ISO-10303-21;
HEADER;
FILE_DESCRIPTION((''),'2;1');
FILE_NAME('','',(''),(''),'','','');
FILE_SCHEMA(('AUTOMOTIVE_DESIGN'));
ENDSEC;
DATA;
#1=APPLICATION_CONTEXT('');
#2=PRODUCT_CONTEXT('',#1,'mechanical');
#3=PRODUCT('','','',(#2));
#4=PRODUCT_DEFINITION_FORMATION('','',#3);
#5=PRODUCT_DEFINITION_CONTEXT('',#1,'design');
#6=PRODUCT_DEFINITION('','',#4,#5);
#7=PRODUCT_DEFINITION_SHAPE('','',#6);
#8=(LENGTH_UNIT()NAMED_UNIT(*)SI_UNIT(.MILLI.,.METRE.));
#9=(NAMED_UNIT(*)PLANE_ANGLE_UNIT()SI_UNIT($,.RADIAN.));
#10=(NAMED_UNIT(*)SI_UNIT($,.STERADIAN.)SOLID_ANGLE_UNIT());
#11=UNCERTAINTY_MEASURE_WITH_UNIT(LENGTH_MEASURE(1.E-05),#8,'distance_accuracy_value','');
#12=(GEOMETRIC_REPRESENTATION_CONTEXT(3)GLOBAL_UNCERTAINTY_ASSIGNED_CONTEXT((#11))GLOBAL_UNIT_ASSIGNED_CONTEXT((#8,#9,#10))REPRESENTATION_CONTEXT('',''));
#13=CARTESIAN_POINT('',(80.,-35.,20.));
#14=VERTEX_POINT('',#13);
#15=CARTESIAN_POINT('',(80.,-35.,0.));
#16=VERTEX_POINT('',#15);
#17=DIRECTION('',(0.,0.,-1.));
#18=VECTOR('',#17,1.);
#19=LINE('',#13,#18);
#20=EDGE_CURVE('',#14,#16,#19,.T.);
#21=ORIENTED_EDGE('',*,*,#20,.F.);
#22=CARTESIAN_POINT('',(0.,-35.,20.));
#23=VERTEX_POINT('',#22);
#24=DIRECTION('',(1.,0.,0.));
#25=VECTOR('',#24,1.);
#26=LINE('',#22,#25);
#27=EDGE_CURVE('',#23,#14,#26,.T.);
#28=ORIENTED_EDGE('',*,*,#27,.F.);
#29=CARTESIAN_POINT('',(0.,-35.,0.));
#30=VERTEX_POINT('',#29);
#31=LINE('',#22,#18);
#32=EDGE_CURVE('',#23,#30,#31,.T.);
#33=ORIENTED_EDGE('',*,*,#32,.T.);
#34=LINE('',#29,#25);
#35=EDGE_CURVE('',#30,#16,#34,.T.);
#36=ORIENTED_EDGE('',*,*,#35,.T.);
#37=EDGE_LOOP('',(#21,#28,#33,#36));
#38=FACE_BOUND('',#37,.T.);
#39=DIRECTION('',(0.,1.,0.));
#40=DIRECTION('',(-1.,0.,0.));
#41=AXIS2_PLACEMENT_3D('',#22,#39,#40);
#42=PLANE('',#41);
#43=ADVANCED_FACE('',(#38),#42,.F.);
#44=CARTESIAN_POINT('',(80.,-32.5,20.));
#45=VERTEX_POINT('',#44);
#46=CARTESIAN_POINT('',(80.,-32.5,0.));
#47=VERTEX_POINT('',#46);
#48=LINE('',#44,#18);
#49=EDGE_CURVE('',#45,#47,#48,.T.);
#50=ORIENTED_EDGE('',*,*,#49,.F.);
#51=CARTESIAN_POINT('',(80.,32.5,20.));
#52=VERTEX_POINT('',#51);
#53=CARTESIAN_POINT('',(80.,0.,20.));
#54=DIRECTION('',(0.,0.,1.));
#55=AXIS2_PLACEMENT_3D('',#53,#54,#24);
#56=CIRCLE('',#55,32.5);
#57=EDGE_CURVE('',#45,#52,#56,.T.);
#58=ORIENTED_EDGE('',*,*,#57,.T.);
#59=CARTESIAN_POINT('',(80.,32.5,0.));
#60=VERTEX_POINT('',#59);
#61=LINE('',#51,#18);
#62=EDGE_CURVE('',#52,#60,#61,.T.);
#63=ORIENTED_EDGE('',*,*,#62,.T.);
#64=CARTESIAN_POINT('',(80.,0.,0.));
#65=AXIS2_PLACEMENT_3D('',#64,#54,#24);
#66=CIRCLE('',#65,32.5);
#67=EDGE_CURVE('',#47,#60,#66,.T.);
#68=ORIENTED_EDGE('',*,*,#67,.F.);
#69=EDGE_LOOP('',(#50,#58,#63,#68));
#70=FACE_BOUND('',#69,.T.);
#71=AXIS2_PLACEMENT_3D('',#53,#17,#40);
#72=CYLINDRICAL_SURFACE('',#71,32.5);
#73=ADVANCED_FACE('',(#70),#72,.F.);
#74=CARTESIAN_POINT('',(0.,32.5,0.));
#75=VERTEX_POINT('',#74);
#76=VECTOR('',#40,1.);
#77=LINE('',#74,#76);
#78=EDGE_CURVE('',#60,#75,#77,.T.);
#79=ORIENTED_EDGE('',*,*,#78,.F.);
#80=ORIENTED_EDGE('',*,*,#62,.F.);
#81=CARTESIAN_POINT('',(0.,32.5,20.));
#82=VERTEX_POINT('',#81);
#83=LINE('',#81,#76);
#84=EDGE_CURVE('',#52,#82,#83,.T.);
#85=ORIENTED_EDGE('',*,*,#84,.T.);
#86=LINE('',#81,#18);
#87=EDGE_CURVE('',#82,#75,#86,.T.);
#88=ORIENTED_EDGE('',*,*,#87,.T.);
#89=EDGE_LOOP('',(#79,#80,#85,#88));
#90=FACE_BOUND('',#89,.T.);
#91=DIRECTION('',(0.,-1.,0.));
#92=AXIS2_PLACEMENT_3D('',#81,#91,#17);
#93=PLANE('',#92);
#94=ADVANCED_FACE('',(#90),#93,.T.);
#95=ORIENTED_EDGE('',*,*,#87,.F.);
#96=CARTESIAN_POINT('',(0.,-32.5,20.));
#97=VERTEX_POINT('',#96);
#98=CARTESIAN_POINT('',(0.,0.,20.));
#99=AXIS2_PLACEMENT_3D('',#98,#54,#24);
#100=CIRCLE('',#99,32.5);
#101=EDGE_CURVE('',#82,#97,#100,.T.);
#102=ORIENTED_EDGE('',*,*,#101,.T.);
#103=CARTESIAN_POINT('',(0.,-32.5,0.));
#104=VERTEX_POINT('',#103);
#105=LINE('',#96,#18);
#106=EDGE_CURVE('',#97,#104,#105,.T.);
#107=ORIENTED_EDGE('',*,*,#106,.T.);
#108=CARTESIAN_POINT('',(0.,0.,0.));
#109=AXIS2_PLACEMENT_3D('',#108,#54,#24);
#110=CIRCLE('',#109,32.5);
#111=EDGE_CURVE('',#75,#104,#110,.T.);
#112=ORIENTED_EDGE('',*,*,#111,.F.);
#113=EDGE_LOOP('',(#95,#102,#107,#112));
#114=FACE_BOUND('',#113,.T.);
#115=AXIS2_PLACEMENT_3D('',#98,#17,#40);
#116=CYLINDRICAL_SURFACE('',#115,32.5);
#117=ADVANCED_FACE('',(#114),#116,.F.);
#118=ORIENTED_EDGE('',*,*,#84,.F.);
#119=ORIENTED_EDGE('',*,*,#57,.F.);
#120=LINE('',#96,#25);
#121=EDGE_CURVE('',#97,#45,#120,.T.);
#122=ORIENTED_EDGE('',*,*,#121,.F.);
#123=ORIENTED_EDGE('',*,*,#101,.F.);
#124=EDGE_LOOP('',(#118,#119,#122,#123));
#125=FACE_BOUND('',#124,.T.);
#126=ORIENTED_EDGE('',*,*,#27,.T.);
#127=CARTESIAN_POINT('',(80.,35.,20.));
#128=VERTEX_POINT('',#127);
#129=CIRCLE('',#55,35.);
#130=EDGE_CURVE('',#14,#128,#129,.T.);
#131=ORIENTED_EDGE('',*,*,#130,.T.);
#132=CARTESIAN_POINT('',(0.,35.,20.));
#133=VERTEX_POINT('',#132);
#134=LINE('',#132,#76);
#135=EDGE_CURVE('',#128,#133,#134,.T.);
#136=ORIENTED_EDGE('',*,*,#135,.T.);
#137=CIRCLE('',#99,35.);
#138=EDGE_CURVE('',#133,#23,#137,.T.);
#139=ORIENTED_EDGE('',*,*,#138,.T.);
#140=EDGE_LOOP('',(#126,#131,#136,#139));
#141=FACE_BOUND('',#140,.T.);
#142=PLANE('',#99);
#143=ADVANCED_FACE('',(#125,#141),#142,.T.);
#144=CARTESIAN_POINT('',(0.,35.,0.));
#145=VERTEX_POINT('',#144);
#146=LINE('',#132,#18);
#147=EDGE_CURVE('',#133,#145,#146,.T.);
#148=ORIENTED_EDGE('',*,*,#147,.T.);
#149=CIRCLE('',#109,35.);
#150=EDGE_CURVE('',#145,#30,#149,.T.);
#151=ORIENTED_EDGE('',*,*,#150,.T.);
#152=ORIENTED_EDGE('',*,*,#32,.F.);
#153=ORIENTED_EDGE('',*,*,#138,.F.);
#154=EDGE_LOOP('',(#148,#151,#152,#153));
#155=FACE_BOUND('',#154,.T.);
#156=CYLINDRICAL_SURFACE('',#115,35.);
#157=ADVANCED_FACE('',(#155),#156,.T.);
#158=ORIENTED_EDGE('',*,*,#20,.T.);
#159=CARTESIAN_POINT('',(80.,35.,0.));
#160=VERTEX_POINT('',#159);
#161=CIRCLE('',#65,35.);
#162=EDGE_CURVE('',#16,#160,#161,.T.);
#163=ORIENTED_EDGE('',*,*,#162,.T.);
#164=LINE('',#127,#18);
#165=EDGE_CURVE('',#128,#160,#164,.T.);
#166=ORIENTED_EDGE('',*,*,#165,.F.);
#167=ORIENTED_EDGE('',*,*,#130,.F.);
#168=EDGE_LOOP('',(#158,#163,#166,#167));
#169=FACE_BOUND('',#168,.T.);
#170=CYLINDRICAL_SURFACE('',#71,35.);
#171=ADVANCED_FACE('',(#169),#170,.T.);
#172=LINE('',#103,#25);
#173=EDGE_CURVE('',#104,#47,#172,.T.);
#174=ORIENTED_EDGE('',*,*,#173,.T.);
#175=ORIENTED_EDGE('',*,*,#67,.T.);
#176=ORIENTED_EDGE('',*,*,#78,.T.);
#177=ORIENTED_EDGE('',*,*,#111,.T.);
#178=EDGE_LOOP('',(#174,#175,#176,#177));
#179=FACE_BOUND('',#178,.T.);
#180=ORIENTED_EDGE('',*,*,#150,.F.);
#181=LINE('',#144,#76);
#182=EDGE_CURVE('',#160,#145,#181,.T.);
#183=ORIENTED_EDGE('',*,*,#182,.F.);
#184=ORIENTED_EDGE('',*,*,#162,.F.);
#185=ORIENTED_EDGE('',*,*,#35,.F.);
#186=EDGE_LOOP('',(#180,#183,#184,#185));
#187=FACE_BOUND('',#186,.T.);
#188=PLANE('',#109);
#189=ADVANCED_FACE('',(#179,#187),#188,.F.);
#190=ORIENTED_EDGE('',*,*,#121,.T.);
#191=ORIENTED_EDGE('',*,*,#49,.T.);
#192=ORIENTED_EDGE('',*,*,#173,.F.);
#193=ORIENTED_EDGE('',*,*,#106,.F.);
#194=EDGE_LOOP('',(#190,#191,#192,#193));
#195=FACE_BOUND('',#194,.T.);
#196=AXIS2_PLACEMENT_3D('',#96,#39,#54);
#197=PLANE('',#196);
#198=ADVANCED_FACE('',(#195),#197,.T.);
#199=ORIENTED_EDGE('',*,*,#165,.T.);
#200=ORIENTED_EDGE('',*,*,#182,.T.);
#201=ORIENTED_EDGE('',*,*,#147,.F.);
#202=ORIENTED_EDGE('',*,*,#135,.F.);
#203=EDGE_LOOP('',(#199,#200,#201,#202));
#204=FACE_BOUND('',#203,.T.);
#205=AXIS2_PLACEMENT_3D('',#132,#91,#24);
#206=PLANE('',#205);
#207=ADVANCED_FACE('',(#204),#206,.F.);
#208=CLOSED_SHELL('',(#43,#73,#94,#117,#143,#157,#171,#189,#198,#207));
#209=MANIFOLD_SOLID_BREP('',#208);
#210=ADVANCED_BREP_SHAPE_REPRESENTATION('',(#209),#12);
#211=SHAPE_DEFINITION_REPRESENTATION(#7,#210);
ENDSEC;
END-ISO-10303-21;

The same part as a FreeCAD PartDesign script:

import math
import FreeCAD as App
import Part
import Sketcher

V = App.Vector
Q = App.Units.Quantity

doc = App.newDocument("Part")
body = doc.addObject("PartDesign::Body", "Body")

# Sketch on XY plane
sketch1 = body.newObject("Sketcher::SketchObject", "Sketch")
sketch1.AttachmentSupport = (doc.getObject("XY_Plane"), [""])
sketch1.MapMode = "FlatFace"
sketch1.addGeometry([
    Part.LineSegment(V(80, 35, 0), V(0, 35, 0)),  # 0
    Part.ArcOfCircle(Part.Circle(V(0, 0, 0), V(0, 0, 1), 35), math.radians(90), math.radians(270)),  # 1
    Part.LineSegment(V(0, -35, 0), V(80, -35, 0)),  # 2
    Part.ArcOfCircle(Part.Circle(V(80, 0, 0), V(0, 0, 1), 35), math.radians(-90), math.radians(90)),  # 3
    Part.LineSegment(V(0, 32, 0), V(80, 32, 0)),  # 4
    Part.ArcOfCircle(Part.Circle(V(80, 0, 0), V(0, 0, 1), 32), math.radians(-90), math.radians(90)),  # 5
    Part.LineSegment(V(80, -32, 0), V(0, -32, 0)),  # 6
    Part.ArcOfCircle(Part.Circle(V(0, 0, 0), V(0, 0, 1), 32), math.radians(90), math.radians(270)),  # 7
], False)
sketch1.addConstraint([
    Sketcher.Constraint("Tangent", 0, 2, 1, 1),
    Sketcher.Constraint("Tangent", 1, 2, 2, 1),
    Sketcher.Constraint("Tangent", 2, 2, 3, 1),
    Sketcher.Constraint("Tangent", 3, 2, 0, 1),
    Sketcher.Constraint("Tangent", 4, 2, 5, 2),
    Sketcher.Constraint("Tangent", 5, 1, 6, 1),
    Sketcher.Constraint("Tangent", 6, 2, 7, 2),
    Sketcher.Constraint("Tangent", 7, 1, 4, 1),
    Sketcher.Constraint("Horizontal", 0),
    Sketcher.Constraint("Horizontal", 2),
    Sketcher.Constraint("Horizontal", 4),
    Sketcher.Constraint("Horizontal", 6),
    Sketcher.Constraint("Coincident", 1, 3, -1, 1),
    Sketcher.Constraint("Coincident", 7, 3, -1, 1),
    Sketcher.Constraint("Vertical", 5, 3, 2, 2),
    Sketcher.Constraint("Radius", 1, Q("35 mm")),
    Sketcher.Constraint("Radius", 5, Q("32.5 mm")),
    Sketcher.Constraint("DistanceX", 0, 2, 0, 1, Q("80 mm")),
])
pad1 = body.newObject("PartDesign::Pad", "Pad")
pad1.Profile = sketch1
pad1.Length = 20

doc.recompute()
